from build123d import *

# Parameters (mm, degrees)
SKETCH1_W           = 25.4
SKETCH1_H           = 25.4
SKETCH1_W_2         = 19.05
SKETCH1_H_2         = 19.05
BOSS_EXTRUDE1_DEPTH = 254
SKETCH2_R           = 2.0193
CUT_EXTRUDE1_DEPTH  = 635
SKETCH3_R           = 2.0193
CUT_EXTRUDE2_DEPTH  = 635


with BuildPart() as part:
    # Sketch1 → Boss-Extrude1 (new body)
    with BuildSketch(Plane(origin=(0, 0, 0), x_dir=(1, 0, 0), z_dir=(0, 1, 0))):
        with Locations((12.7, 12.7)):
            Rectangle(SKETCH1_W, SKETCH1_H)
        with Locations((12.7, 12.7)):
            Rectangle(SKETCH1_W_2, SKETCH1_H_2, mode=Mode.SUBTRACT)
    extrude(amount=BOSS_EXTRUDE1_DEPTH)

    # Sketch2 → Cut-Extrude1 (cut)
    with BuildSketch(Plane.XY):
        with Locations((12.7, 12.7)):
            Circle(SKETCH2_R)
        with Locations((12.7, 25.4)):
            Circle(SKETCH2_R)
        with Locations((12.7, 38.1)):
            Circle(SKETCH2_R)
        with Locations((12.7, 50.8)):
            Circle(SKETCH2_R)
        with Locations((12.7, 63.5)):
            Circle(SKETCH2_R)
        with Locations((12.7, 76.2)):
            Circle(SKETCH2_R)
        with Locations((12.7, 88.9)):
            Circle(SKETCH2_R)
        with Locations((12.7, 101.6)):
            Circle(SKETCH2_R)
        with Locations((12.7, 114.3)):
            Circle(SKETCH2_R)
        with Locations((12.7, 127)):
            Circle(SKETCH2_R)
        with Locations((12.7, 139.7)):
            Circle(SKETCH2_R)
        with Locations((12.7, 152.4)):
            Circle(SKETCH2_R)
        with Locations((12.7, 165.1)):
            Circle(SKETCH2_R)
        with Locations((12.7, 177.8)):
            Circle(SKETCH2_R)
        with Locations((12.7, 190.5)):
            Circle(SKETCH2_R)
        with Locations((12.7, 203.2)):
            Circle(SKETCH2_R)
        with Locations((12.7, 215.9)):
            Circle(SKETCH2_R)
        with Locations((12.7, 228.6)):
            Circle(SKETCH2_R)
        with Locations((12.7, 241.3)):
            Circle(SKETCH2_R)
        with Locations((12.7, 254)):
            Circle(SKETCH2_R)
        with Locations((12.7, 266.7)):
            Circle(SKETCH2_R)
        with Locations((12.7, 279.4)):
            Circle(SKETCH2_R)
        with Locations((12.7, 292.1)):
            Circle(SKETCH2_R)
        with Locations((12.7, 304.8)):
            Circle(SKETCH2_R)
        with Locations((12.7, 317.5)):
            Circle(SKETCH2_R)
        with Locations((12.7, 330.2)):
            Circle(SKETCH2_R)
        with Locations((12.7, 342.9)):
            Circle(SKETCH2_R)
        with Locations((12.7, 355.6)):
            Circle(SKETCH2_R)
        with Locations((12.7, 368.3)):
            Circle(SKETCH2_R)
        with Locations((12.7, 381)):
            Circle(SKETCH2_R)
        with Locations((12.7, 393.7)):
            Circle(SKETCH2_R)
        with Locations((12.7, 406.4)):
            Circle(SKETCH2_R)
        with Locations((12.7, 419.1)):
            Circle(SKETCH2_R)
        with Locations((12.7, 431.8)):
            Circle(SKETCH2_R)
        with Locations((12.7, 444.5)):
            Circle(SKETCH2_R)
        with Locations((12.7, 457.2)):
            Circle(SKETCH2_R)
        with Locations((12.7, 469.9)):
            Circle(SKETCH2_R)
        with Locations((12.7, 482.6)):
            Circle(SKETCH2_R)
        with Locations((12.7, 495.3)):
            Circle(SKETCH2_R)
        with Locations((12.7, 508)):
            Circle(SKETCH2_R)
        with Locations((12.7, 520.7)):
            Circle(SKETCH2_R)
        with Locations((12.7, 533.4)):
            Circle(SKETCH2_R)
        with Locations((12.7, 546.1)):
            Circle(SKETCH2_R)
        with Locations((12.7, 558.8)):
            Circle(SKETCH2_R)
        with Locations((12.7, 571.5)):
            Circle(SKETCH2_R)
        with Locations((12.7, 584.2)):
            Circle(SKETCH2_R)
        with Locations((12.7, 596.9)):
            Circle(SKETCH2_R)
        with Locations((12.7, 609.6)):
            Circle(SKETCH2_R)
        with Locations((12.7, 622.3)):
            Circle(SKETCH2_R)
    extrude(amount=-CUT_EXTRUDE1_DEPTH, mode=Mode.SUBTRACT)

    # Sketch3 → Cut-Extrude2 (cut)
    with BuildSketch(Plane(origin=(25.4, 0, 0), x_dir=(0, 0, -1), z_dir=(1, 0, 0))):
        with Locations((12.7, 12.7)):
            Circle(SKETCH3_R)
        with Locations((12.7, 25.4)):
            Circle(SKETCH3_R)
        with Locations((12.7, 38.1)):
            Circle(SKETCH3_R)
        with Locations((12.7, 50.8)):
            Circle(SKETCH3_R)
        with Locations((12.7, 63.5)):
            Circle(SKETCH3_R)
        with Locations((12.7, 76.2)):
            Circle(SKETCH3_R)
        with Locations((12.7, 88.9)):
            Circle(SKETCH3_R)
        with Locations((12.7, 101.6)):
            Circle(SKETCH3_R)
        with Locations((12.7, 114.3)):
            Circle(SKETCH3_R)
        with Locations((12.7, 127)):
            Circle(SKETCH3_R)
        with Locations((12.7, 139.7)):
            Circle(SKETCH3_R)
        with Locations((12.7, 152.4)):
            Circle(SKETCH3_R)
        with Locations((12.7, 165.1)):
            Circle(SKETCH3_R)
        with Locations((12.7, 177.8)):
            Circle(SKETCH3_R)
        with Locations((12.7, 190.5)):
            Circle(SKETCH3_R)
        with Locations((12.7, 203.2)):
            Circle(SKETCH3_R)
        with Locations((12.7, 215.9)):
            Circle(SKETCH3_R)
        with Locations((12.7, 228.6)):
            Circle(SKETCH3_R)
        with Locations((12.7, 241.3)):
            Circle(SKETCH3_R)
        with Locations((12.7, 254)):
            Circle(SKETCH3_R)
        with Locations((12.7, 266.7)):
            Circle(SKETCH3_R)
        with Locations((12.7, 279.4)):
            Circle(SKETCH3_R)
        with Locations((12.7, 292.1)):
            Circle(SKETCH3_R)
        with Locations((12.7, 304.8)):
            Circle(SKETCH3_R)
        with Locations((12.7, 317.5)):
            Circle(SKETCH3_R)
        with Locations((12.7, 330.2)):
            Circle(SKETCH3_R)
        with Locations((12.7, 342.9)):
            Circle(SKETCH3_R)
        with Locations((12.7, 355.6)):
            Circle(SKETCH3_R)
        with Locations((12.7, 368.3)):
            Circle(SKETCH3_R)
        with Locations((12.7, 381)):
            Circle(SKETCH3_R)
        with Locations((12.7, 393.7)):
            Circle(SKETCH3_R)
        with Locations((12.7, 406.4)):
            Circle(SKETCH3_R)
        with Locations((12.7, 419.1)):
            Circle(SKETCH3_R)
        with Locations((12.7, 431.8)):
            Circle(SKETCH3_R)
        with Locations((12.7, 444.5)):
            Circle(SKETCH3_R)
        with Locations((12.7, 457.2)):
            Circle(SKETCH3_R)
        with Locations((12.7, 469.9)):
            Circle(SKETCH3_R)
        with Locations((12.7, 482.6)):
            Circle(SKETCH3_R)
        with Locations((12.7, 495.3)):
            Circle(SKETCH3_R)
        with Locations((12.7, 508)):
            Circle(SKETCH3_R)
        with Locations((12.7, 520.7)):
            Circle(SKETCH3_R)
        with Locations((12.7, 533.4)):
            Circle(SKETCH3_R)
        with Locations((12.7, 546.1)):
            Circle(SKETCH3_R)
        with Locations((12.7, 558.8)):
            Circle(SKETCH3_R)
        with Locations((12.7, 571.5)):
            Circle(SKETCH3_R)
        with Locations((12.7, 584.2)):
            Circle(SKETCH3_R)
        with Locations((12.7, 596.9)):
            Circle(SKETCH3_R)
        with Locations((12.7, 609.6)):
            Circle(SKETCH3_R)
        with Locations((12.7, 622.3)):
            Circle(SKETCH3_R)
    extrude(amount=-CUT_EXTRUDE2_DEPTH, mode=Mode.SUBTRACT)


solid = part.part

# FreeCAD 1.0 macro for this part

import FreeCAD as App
import Part
import Sketcher
from FreeCAD import Vector
Q = App.Units.Quantity

doc = App.newDocument("Part")
body = doc.addObject("PartDesign::Body", "Body")

sketch1 = doc.addObject("Sketcher::SketchObject", "Sketch")
body.addObject(sketch1)
sketch1.AttachmentSupport = (doc.XZ_Plane, [""])
sketch1.MapMode = "FlatFace"
sketch1.addGeometry([
    Part.LineSegment(Vector(0, -25, 0), Vector(0, 0, 0)),
    Part.LineSegment(Vector(0, 0, 0), Vector(25, 0, 0)),
    Part.LineSegment(Vector(25, 0, 0), Vector(25, -25, 0)),
    Part.LineSegment(Vector(25, -25, 0), Vector(0, -25, 0)),
    Part.LineSegment(Vector(22, -3, 0), Vector(3, -3, 0)),
    Part.LineSegment(Vector(3, -3, 0), Vector(3, -22, 0)),
    Part.LineSegment(Vector(3, -22, 0), Vector(22, -22, 0)),
    Part.LineSegment(Vector(22, -22, 0), Vector(22, -3, 0)),
], False)
sketch1.addConstraint([
    Sketcher.Constraint("Coincident", 0, 2, 1, 1),
    Sketcher.Constraint("Coincident", 1, 2, 2, 1),
    Sketcher.Constraint("Coincident", 2, 2, 3, 1),
    Sketcher.Constraint("Coincident", 3, 2, 0, 1),
    Sketcher.Constraint("Coincident", 4, 2, 5, 1),
    Sketcher.Constraint("Coincident", 5, 2, 6, 1),
    Sketcher.Constraint("Coincident", 6, 2, 7, 1),
    Sketcher.Constraint("Coincident", 7, 2, 4, 1),
    Sketcher.Constraint("Vertical", 0),
    Sketcher.Constraint("Horizontal", 1),
    Sketcher.Constraint("Vertical", 2),
    Sketcher.Constraint("Horizontal", 3),
    Sketcher.Constraint("Horizontal", 4),
    Sketcher.Constraint("Vertical", 5),
    Sketcher.Constraint("Horizontal", 6),
    Sketcher.Constraint("Vertical", 7),
    Sketcher.Constraint("Coincident", 0, 2, -1, 1),
    Sketcher.Constraint("Equal", 3, 0),
    Sketcher.Constraint("Equal", 6, 5),
    Sketcher.Constraint("DistanceX", 1, 1, 1, 2, Q("1 in")),
    Sketcher.Constraint("DistanceX", 4, 2, 4, 1, Q("0.75 in")),
    Sketcher.Constraint("DistanceX", -1, 1, 4, 2, Q("0.125 in")),
    Sketcher.Constraint("DistanceY", 4, 2, -1, 1, Q("0.125 in")),
])
pad1 = doc.addObject("PartDesign::Pad", "Pad")
body.addObject(pad1)
pad1.Profile = sketch1
pad1.Length = Q("10 in")
pad1.Reversed = True

sketch2 = doc.addObject("Sketcher::SketchObject", "Sketch001")
body.addObject(sketch2)
sketch2.AttachmentSupport = (doc.XY_Plane, [""])
sketch2.MapMode = "FlatFace"
sketch2.addGeometry([
    Part.Circle(Vector(12.7, 12.7, 0), Vector(0, 0, 1), 2),
    Part.Circle(Vector(12.7, 25.4, 0), Vector(0, 0, 1), 2),
    Part.Circle(Vector(12.7, 38.1, 0), Vector(0, 0, 1), 2),
    Part.Circle(Vector(12.7, 50.8, 0), Vector(0, 0, 1), 2),
    Part.Circle(Vector(12.7, 63.5, 0), Vector(0, 0, 1), 2),
    Part.Circle(Vector(12.7, 76.2, 0), Vector(0, 0, 1), 2),
    Part.Circle(Vector(12.7, 88.9, 0), Vector(0, 0, 1), 2),
    Part.Circle(Vector(12.7, 101.6, 0), Vector(0, 0, 1), 2),
    Part.Circle(Vector(12.7, 114.3, 0), Vector(0, 0, 1), 2),
    Part.Circle(Vector(12.7, 127, 0), Vector(0, 0, 1), 2),
    Part.Circle(Vector(12.7, 139.7, 0), Vector(0, 0, 1), 2),
    Part.Circle(Vector(12.7, 152.4, 0), Vector(0, 0, 1), 2),
    Part.Circle(Vector(12.7, 165.1, 0), Vector(0, 0, 1), 2),
    Part.Circle(Vector(12.7, 177.8, 0), Vector(0, 0, 1), 2),
    Part.Circle(Vector(12.7, 190.5, 0), Vector(0, 0, 1), 2),
    Part.Circle(Vector(12.7, 203.2, 0), Vector(0, 0, 1), 2),
    Part.Circle(Vector(12.7, 215.9, 0), Vector(0, 0, 1), 2),
    Part.Circle(Vector(12.7, 228.6, 0), Vector(0, 0, 1), 2),
    Part.Circle(Vector(12.7, 241.3, 0), Vector(0, 0, 1), 2),
    Part.Circle(Vector(12.7, 254, 0), Vector(0, 0, 1), 2),
    Part.Circle(Vector(12.7, 266.7, 0), Vector(0, 0, 1), 2),
    Part.Circle(Vector(12.7, 279.4, 0), Vector(0, 0, 1), 2),
    Part.Circle(Vector(12.7, 292.1, 0), Vector(0, 0, 1), 2),
    Part.Circle(Vector(12.7, 304.8, 0), Vector(0, 0, 1), 2),
    Part.Circle(Vector(12.7, 317.5, 0), Vector(0, 0, 1), 2),
    Part.Circle(Vector(12.7, 330.2, 0), Vector(0, 0, 1), 2),
    Part.Circle(Vector(12.7, 342.9, 0), Vector(0, 0, 1), 2),
    Part.Circle(Vector(12.7, 355.6, 0), Vector(0, 0, 1), 2),
    Part.Circle(Vector(12.7, 368.3, 0), Vector(0, 0, 1), 2),
    Part.Circle(Vector(12.7, 381, 0), Vector(0, 0, 1), 2),
    Part.Circle(Vector(12.7, 393.7, 0), Vector(0, 0, 1), 2),
    Part.Circle(Vector(12.7, 406.4, 0), Vector(0, 0, 1), 2),
    Part.Circle(Vector(12.7, 419.1, 0), Vector(0, 0, 1), 2),
    Part.Circle(Vector(12.7, 431.8, 0), Vector(0, 0, 1), 2),
    Part.Circle(Vector(12.7, 444.5, 0), Vector(0, 0, 1), 2),
    Part.Circle(Vector(12.7, 457.2, 0), Vector(0, 0, 1), 2),
    Part.Circle(Vector(12.7, 469.9, 0), Vector(0, 0, 1), 2),
    Part.Circle(Vector(12.7, 482.6, 0), Vector(0, 0, 1), 2),
    Part.Circle(Vector(12.7, 495.3, 0), Vector(0, 0, 1), 2),
    Part.Circle(Vector(12.7, 508, 0), Vector(0, 0, 1), 2),
    Part.Circle(Vector(12.7, 520.7, 0), Vector(0, 0, 1), 2),
    Part.Circle(Vector(12.7, 533.4, 0), Vector(0, 0, 1), 2),
    Part.Circle(Vector(12.7, 546.1, 0), Vector(0, 0, 1), 2),
    Part.Circle(Vector(12.7, 558.8, 0), Vector(0, 0, 1), 2),
    Part.Circle(Vector(12.7, 571.5, 0), Vector(0, 0, 1), 2),
    Part.Circle(Vector(12.7, 584.2, 0), Vector(0, 0, 1), 2),
    Part.Circle(Vector(12.7, 596.9, 0), Vector(0, 0, 1), 2),
    Part.Circle(Vector(12.7, 609.6, 0), Vector(0, 0, 1), 2),
    Part.Circle(Vector(12.7, 622.3, 0), Vector(0, 0, 1), 2),
], False)
sketch2.addConstraint([
    Sketcher.Constraint("Equal", 0, 1),
    Sketcher.Constraint("Equal", 1, 2),
    Sketcher.Constraint("Equal", 2, 3),
    Sketcher.Constraint("Equal", 3, 4),
    Sketcher.Constraint("Equal", 4, 5),
    Sketcher.Constraint("Equal", 5, 6),
    Sketcher.Constraint("Equal", 6, 7),
    Sketcher.Constraint("Equal", 7, 8),
    Sketcher.Constraint("Equal", 8, 9),
    Sketcher.Constraint("Equal", 9, 10),
    Sketcher.Constraint("Equal", 10, 11),
    Sketcher.Constraint("Equal", 11, 12),
    Sketcher.Constraint("Equal", 12, 13),
    Sketcher.Constraint("Equal", 13, 14),
    Sketcher.Constraint("Equal", 14, 15),
    Sketcher.Constraint("Equal", 15, 16),
    Sketcher.Constraint("Equal", 16, 17),
    Sketcher.Constraint("Equal", 17, 18),
    Sketcher.Constraint("Equal", 18, 19),
    Sketcher.Constraint("Equal", 19, 20),
    Sketcher.Constraint("Equal", 20, 21),
    Sketcher.Constraint("Equal", 21, 22),
    Sketcher.Constraint("Equal", 22, 23),
    Sketcher.Constraint("Equal", 23, 24),
    Sketcher.Constraint("Equal", 24, 25),
    Sketcher.Constraint("Equal", 25, 26),
    Sketcher.Constraint("Equal", 26, 27),
    Sketcher.Constraint("Equal", 27, 28),
    Sketcher.Constraint("Equal", 28, 29),
    Sketcher.Constraint("Equal", 29, 30),
    Sketcher.Constraint("Equal", 30, 31),
    Sketcher.Constraint("Equal", 31, 32),
    Sketcher.Constraint("Equal", 32, 33),
    Sketcher.Constraint("Equal", 33, 34),
    Sketcher.Constraint("Equal", 34, 35),
    Sketcher.Constraint("Equal", 35, 36),
    Sketcher.Constraint("Equal", 36, 37),
    Sketcher.Constraint("Equal", 37, 38),
    Sketcher.Constraint("Equal", 38, 39),
    Sketcher.Constraint("Equal", 39, 40),
    Sketcher.Constraint("Equal", 40, 41),
    Sketcher.Constraint("Equal", 41, 42),
    Sketcher.Constraint("Equal", 42, 43),
    Sketcher.Constraint("Equal", 43, 44),
    Sketcher.Constraint("Equal", 44, 45),
    Sketcher.Constraint("Equal", 45, 46),
    Sketcher.Constraint("Equal", 46, 47),
    Sketcher.Constraint("Equal", 47, 48),
    Sketcher.Constraint("Vertical", 0, 3, 1, 3),
    Sketcher.Constraint("Vertical", 1, 3, 2, 3),
    Sketcher.Constraint("Vertical", 2, 3, 3, 3),
    Sketcher.Constraint("Vertical", 3, 3, 4, 3),
    Sketcher.Constraint("Vertical", 4, 3, 5, 3),
    Sketcher.Constraint("Vertical", 5, 3, 6, 3),
    Sketcher.Constraint("Vertical", 6, 3, 7, 3),
    Sketcher.Constraint("Vertical", 7, 3, 8, 3),
    Sketcher.Constraint("Vertical", 8, 3, 9, 3),
    Sketcher.Constraint("Vertical", 9, 3, 10, 3),
    Sketcher.Constraint("Vertical", 10, 3, 11, 3),
    Sketcher.Constraint("Vertical", 11, 3, 12, 3),
    Sketcher.Constraint("Vertical", 12, 3, 13, 3),
    Sketcher.Constraint("Vertical", 13, 3, 14, 3),
    Sketcher.Constraint("Vertical", 14, 3, 15, 3),
    Sketcher.Constraint("Vertical", 15, 3, 16, 3),
    Sketcher.Constraint("Vertical", 16, 3, 17, 3),
    Sketcher.Constraint("Vertical", 17, 3, 18, 3),
    Sketcher.Constraint("Vertical", 18, 3, 19, 3),
    Sketcher.Constraint("Vertical", 19, 3, 20, 3),
    Sketcher.Constraint("Vertical", 20, 3, 21, 3),
    Sketcher.Constraint("Vertical", 21, 3, 22, 3),
    Sketcher.Constraint("Vertical", 22, 3, 23, 3),
    Sketcher.Constraint("Vertical", 23, 3, 24, 3),
    Sketcher.Constraint("Vertical", 24, 3, 25, 3),
    Sketcher.Constraint("Vertical", 25, 3, 26, 3),
    Sketcher.Constraint("Vertical", 26, 3, 27, 3),
    Sketcher.Constraint("Vertical", 27, 3, 28, 3),
    Sketcher.Constraint("Vertical", 28, 3, 29, 3),
    Sketcher.Constraint("Vertical", 29, 3, 30, 3),
    Sketcher.Constraint("Vertical", 30, 3, 31, 3),
    Sketcher.Constraint("Vertical", 31, 3, 32, 3),
    Sketcher.Constraint("Vertical", 32, 3, 33, 3),
    Sketcher.Constraint("Vertical", 33, 3, 34, 3),
    Sketcher.Constraint("Vertical", 34, 3, 35, 3),
    Sketcher.Constraint("Vertical", 35, 3, 36, 3),
    Sketcher.Constraint("Vertical", 36, 3, 37, 3),
    Sketcher.Constraint("Vertical", 37, 3, 38, 3),
    Sketcher.Constraint("Vertical", 38, 3, 39, 3),
    Sketcher.Constraint("Vertical", 39, 3, 40, 3),
    Sketcher.Constraint("Vertical", 40, 3, 41, 3),
    Sketcher.Constraint("Vertical", 41, 3, 42, 3),
    Sketcher.Constraint("Vertical", 42, 3, 43, 3),
    Sketcher.Constraint("Vertical", 43, 3, 44, 3),
    Sketcher.Constraint("Vertical", 44, 3, 45, 3),
    Sketcher.Constraint("Vertical", 45, 3, 46, 3),
    Sketcher.Constraint("Vertical", 46, 3, 47, 3),
    Sketcher.Constraint("Vertical", 47, 3, 48, 3),
    Sketcher.Constraint("Diameter", 0, Q("0.159 in")),
    Sketcher.Constraint("DistanceY", -1, 1, 1, 3, Q("1 in")),
    Sketcher.Constraint("DistanceY", -1, 1, 3, 3, Q("2 in")),
    Sketcher.Constraint("DistanceY", -1, 1, 5, 3, Q("3 in")),
    Sketcher.Constraint("DistanceY", -1, 1, 7, 3, Q("4 in")),
    Sketcher.Constraint("DistanceY", -1, 1, 9, 3, Q("5 in")),
    Sketcher.Constraint("DistanceY", -1, 1, 11, 3, Q("6 in")),
    Sketcher.Constraint("DistanceY", -1, 1, 13, 3, Q("7 in")),
    Sketcher.Constraint("DistanceY", -1, 1, 15, 3, Q("8 in")),
    Sketcher.Constraint("DistanceY", -1, 1, 17, 3, Q("9 in")),
    Sketcher.Constraint("DistanceY", -1, 1, 19, 3, Q("10 in")),
    Sketcher.Constraint("DistanceY", -1, 1, 21, 3, Q("11 in")),
    Sketcher.Constraint("DistanceY", -1, 1, 23, 3, Q("12 in")),
    Sketcher.Constraint("DistanceY", -1, 1, 25, 3, Q("13 in")),
    Sketcher.Constraint("DistanceY", -1, 1, 27, 3, Q("14 in")),
    Sketcher.Constraint("DistanceY", -1, 1, 29, 3, Q("15 in")),
    Sketcher.Constraint("DistanceY", -1, 1, 31, 3, Q("16 in")),
    Sketcher.Constraint("DistanceY", -1, 1, 33, 3, Q("17 in")),
    Sketcher.Constraint("DistanceY", -1, 1, 35, 3, Q("18 in")),
    Sketcher.Constraint("DistanceY", -1, 1, 37, 3, Q("19 in")),
    Sketcher.Constraint("DistanceY", -1, 1, 39, 3, Q("20 in")),
    Sketcher.Constraint("DistanceY", -1, 1, 41, 3, Q("21 in")),
    Sketcher.Constraint("DistanceY", -1, 1, 43, 3, Q("22 in")),
    Sketcher.Constraint("DistanceY", -1, 1, 45, 3, Q("23 in")),
    Sketcher.Constraint("DistanceY", -1, 1, 47, 3, Q("24 in")),
    Sketcher.Constraint("DistanceY", 0, 3, 2, 3, Q("1 in")),
    Sketcher.Constraint("DistanceY", 2, 3, 4, 3, Q("1 in")),
    Sketcher.Constraint("DistanceY", 4, 3, 6, 3, Q("1 in")),
    Sketcher.Constraint("DistanceY", 6, 3, 8, 3, Q("1 in")),
    Sketcher.Constraint("DistanceY", 8, 3, 10, 3, Q("1 in")),
    Sketcher.Constraint("DistanceY", 10, 3, 12, 3, Q("1 in")),
    Sketcher.Constraint("DistanceY", 12, 3, 14, 3, Q("1 in")),
    Sketcher.Constraint("DistanceY", 14, 3, 16, 3, Q("1 in")),
    Sketcher.Constraint("DistanceY", 16, 3, 18, 3, Q("1 in")),
    Sketcher.Constraint("DistanceY", 18, 3, 20, 3, Q("1 in")),
    Sketcher.Constraint("DistanceY", 20, 3, 22, 3, Q("1 in")),
    Sketcher.Constraint("DistanceY", 22, 3, 24, 3, Q("1 in")),
    Sketcher.Constraint("DistanceY", 24, 3, 26, 3, Q("1 in")),
    Sketcher.Constraint("DistanceY", 26, 3, 28, 3, Q("1 in")),
    Sketcher.Constraint("DistanceY", 28, 3, 30, 3, Q("1 in")),
    Sketcher.Constraint("DistanceY", 30, 3, 32, 3, Q("1 in")),
    Sketcher.Constraint("DistanceY", 32, 3, 34, 3, Q("1 in")),
    Sketcher.Constraint("DistanceY", 34, 3, 36, 3, Q("1 in")),
    Sketcher.Constraint("DistanceY", 36, 3, 38, 3, Q("1 in")),
    Sketcher.Constraint("DistanceY", 38, 3, 40, 3, Q("1 in")),
    Sketcher.Constraint("DistanceY", 40, 3, 42, 3, Q("1 in")),
    Sketcher.Constraint("DistanceY", 42, 3, 44, 3, Q("1 in")),
    Sketcher.Constraint("DistanceY", 44, 3, 46, 3, Q("1 in")),
    Sketcher.Constraint("DistanceY", 46, 3, 48, 3, Q("1 in")),
    Sketcher.Constraint("DistanceX", -1, 1, 0, 3, Q("0.5 in")),
    Sketcher.Constraint("DistanceY", -1, 1, 0, 3, Q("0.5 in")),
])
pocket1 = doc.addObject("PartDesign::Pocket", "Pocket")
body.addObject(pocket1)
pocket1.Profile = sketch2
pocket1.Length = Q("25 in")

sketch3 = doc.addObject("Sketcher::SketchObject", "Sketch002")
body.addObject(sketch3)
sketch3.AttachmentSupport = (doc.YZ_Plane, [""])
sketch3.MapMode = "FlatFace"
sketch3.AttachmentOffset = App.Placement(Vector(0, 0, 1 * 25.4), App.Rotation())
sketch3.addGeometry([
    Part.Circle(Vector(12.7, -12.7, 0), Vector(0, 0, 1), 2),
    Part.Circle(Vector(25.4, -12.7, 0), Vector(0, 0, 1), 2),
    Part.Circle(Vector(38.1, -12.7, 0), Vector(0, 0, 1), 2),
    Part.Circle(Vector(50.8, -12.7, 0), Vector(0, 0, 1), 2),
    Part.Circle(Vector(63.5, -12.7, 0), Vector(0, 0, 1), 2),
    Part.Circle(Vector(76.2, -12.7, 0), Vector(0, 0, 1), 2),
    Part.Circle(Vector(88.9, -12.7, 0), Vector(0, 0, 1), 2),
    Part.Circle(Vector(101.6, -12.7, 0), Vector(0, 0, 1), 2),
    Part.Circle(Vector(114.3, -12.7, 0), Vector(0, 0, 1), 2),
    Part.Circle(Vector(127, -12.7, 0), Vector(0, 0, 1), 2),
    Part.Circle(Vector(139.7, -12.7, 0), Vector(0, 0, 1), 2),
    Part.Circle(Vector(152.4, -12.7, 0), Vector(0, 0, 1), 2),
    Part.Circle(Vector(165.1, -12.7, 0), Vector(0, 0, 1), 2),
    Part.Circle(Vector(177.8, -12.7, 0), Vector(0, 0, 1), 2),
    Part.Circle(Vector(190.5, -12.7, 0), Vector(0, 0, 1), 2),
    Part.Circle(Vector(203.2, -12.7, 0), Vector(0, 0, 1), 2),
    Part.Circle(Vector(215.9, -12.7, 0), Vector(0, 0, 1), 2),
    Part.Circle(Vector(228.6, -12.7, 0), Vector(0, 0, 1), 2),
    Part.Circle(Vector(241.3, -12.7, 0), Vector(0, 0, 1), 2),
    Part.Circle(Vector(254, -12.7, 0), Vector(0, 0, 1), 2),
    Part.Circle(Vector(266.7, -12.7, 0), Vector(0, 0, 1), 2),
    Part.Circle(Vector(279.4, -12.7, 0), Vector(0, 0, 1), 2),
    Part.Circle(Vector(292.1, -12.7, 0), Vector(0, 0, 1), 2),
    Part.Circle(Vector(304.8, -12.7, 0), Vector(0, 0, 1), 2),
    Part.Circle(Vector(317.5, -12.7, 0), Vector(0, 0, 1), 2),
    Part.Circle(Vector(330.2, -12.7, 0), Vector(0, 0, 1), 2),
    Part.Circle(Vector(342.9, -12.7, 0), Vector(0, 0, 1), 2),
    Part.Circle(Vector(355.6, -12.7, 0), Vector(0, 0, 1), 2),
    Part.Circle(Vector(368.3, -12.7, 0), Vector(0, 0, 1), 2),
    Part.Circle(Vector(381, -12.7, 0), Vector(0, 0, 1), 2),
    Part.Circle(Vector(393.7, -12.7, 0), Vector(0, 0, 1), 2),
    Part.Circle(Vector(406.4, -12.7, 0), Vector(0, 0, 1), 2),
    Part.Circle(Vector(419.1, -12.7, 0), Vector(0, 0, 1), 2),
    Part.Circle(Vector(431.8, -12.7, 0), Vector(0, 0, 1), 2),
    Part.Circle(Vector(444.5, -12.7, 0), Vector(0, 0, 1), 2),
    Part.Circle(Vector(457.2, -12.7, 0), Vector(0, 0, 1), 2),
    Part.Circle(Vector(469.9, -12.7, 0), Vector(0, 0, 1), 2),
    Part.Circle(Vector(482.6, -12.7, 0), Vector(0, 0, 1), 2),
    Part.Circle(Vector(495.3, -12.7, 0), Vector(0, 0, 1), 2),
    Part.Circle(Vector(508, -12.7, 0), Vector(0, 0, 1), 2),
    Part.Circle(Vector(520.7, -12.7, 0), Vector(0, 0, 1), 2),
    Part.Circle(Vector(533.4, -12.7, 0), Vector(0, 0, 1), 2),
    Part.Circle(Vector(546.1, -12.7, 0), Vector(0, 0, 1), 2),
    Part.Circle(Vector(558.8, -12.7, 0), Vector(0, 0, 1), 2),
    Part.Circle(Vector(571.5, -12.7, 0), Vector(0, 0, 1), 2),
    Part.Circle(Vector(584.2, -12.7, 0), Vector(0, 0, 1), 2),
    Part.Circle(Vector(596.9, -12.7, 0), Vector(0, 0, 1), 2),
    Part.Circle(Vector(609.6, -12.7, 0), Vector(0, 0, 1), 2),
    Part.Circle(Vector(622.3, -12.7, 0), Vector(0, 0, 1), 2),
], False)
sketch3.addConstraint([
    Sketcher.Constraint("Equal", 0, 1),
    Sketcher.Constraint("Equal", 1, 2),
    Sketcher.Constraint("Equal", 2, 3),
    Sketcher.Constraint("Equal", 3, 4),
    Sketcher.Constraint("Equal", 4, 5),
    Sketcher.Constraint("Equal", 5, 6),
    Sketcher.Constraint("Equal", 6, 7),
    Sketcher.Constraint("Equal", 7, 8),
    Sketcher.Constraint("Equal", 8, 9),
    Sketcher.Constraint("Equal", 9, 10),
    Sketcher.Constraint("Equal", 10, 11),
    Sketcher.Constraint("Equal", 11, 12),
    Sketcher.Constraint("Equal", 12, 13),
    Sketcher.Constraint("Equal", 13, 14),
    Sketcher.Constraint("Equal", 14, 15),
    Sketcher.Constraint("Equal", 15, 16),
    Sketcher.Constraint("Equal", 16, 17),
    Sketcher.Constraint("Equal", 17, 18),
    Sketcher.Constraint("Equal", 18, 19),
    Sketcher.Constraint("Equal", 19, 20),
    Sketcher.Constraint("Equal", 20, 21),
    Sketcher.Constraint("Equal", 21, 22),
    Sketcher.Constraint("Equal", 22, 23),
    Sketcher.Constraint("Equal", 23, 24),
    Sketcher.Constraint("Equal", 24, 25),
    Sketcher.Constraint("Equal", 25, 26),
    Sketcher.Constraint("Equal", 26, 27),
    Sketcher.Constraint("Equal", 27, 28),
    Sketcher.Constraint("Equal", 28, 29),
    Sketcher.Constraint("Equal", 29, 30),
    Sketcher.Constraint("Equal", 30, 31),
    Sketcher.Constraint("Equal", 31, 32),
    Sketcher.Constraint("Equal", 32, 33),
    Sketcher.Constraint("Equal", 33, 34),
    Sketcher.Constraint("Equal", 34, 35),
    Sketcher.Constraint("Equal", 35, 36),
    Sketcher.Constraint("Equal", 36, 37),
    Sketcher.Constraint("Equal", 37, 38),
    Sketcher.Constraint("Equal", 38, 39),
    Sketcher.Constraint("Equal", 39, 40),
    Sketcher.Constraint("Equal", 40, 41),
    Sketcher.Constraint("Equal", 41, 42),
    Sketcher.Constraint("Equal", 42, 43),
    Sketcher.Constraint("Equal", 43, 44),
    Sketcher.Constraint("Equal", 44, 45),
    Sketcher.Constraint("Equal", 45, 46),
    Sketcher.Constraint("Equal", 46, 47),
    Sketcher.Constraint("Equal", 47, 48),
    Sketcher.Constraint("Horizontal", 0, 3, 1, 3),
    Sketcher.Constraint("Horizontal", 1, 3, 2, 3),
    Sketcher.Constraint("Horizontal", 2, 3, 3, 3),
    Sketcher.Constraint("Horizontal", 3, 3, 4, 3),
    Sketcher.Constraint("Horizontal", 4, 3, 5, 3),
    Sketcher.Constraint("Horizontal", 5, 3, 6, 3),
    Sketcher.Constraint("Horizontal", 6, 3, 7, 3),
    Sketcher.Constraint("Horizontal", 7, 3, 8, 3),
    Sketcher.Constraint("Horizontal", 8, 3, 9, 3),
    Sketcher.Constraint("Horizontal", 9, 3, 10, 3),
    Sketcher.Constraint("Horizontal", 10, 3, 11, 3),
    Sketcher.Constraint("Horizontal", 11, 3, 12, 3),
    Sketcher.Constraint("Horizontal", 12, 3, 13, 3),
    Sketcher.Constraint("Horizontal", 13, 3, 14, 3),
    Sketcher.Constraint("Horizontal", 14, 3, 15, 3),
    Sketcher.Constraint("Horizontal", 15, 3, 16, 3),
    Sketcher.Constraint("Horizontal", 16, 3, 17, 3),
    Sketcher.Constraint("Horizontal", 17, 3, 18, 3),
    Sketcher.Constraint("Horizontal", 18, 3, 19, 3),
    Sketcher.Constraint("Horizontal", 19, 3, 20, 3),
    Sketcher.Constraint("Horizontal", 20, 3, 21, 3),
    Sketcher.Constraint("Horizontal", 21, 3, 22, 3),
    Sketcher.Constraint("Horizontal", 22, 3, 23, 3),
    Sketcher.Constraint("Horizontal", 23, 3, 24, 3),
    Sketcher.Constraint("Horizontal", 24, 3, 25, 3),
    Sketcher.Constraint("Horizontal", 25, 3, 26, 3),
    Sketcher.Constraint("Horizontal", 26, 3, 27, 3),
    Sketcher.Constraint("Horizontal", 27, 3, 28, 3),
    Sketcher.Constraint("Horizontal", 28, 3, 29, 3),
    Sketcher.Constraint("Horizontal", 29, 3, 30, 3),
    Sketcher.Constraint("Horizontal", 30, 3, 31, 3),
    Sketcher.Constraint("Horizontal", 31, 3, 32, 3),
    Sketcher.Constraint("Horizontal", 32, 3, 33, 3),
    Sketcher.Constraint("Horizontal", 33, 3, 34, 3),
    Sketcher.Constraint("Horizontal", 34, 3, 35, 3),
    Sketcher.Constraint("Horizontal", 35, 3, 36, 3),
    Sketcher.Constraint("Horizontal", 36, 3, 37, 3),
    Sketcher.Constraint("Horizontal", 37, 3, 38, 3),
    Sketcher.Constraint("Horizontal", 38, 3, 39, 3),
    Sketcher.Constraint("Horizontal", 39, 3, 40, 3),
    Sketcher.Constraint("Horizontal", 40, 3, 41, 3),
    Sketcher.Constraint("Horizontal", 41, 3, 42, 3),
    Sketcher.Constraint("Horizontal", 42, 3, 43, 3),
    Sketcher.Constraint("Horizontal", 43, 3, 44, 3),
    Sketcher.Constraint("Horizontal", 44, 3, 45, 3),
    Sketcher.Constraint("Horizontal", 45, 3, 46, 3),
    Sketcher.Constraint("Horizontal", 46, 3, 47, 3),
    Sketcher.Constraint("Horizontal", 47, 3, 48, 3),
    Sketcher.Constraint("Diameter", 0, Q("0.159 in")),
    Sketcher.Constraint("DistanceX", -1, 1, 1, 3, Q("1 in")),
    Sketcher.Constraint("DistanceX", -1, 1, 3, 3, Q("2 in")),
    Sketcher.Constraint("DistanceX", -1, 1, 5, 3, Q("3 in")),
    Sketcher.Constraint("DistanceX", -1, 1, 7, 3, Q("4 in")),
    Sketcher.Constraint("DistanceX", -1, 1, 9, 3, Q("5 in")),
    Sketcher.Constraint("DistanceX", -1, 1, 11, 3, Q("6 in")),
    Sketcher.Constraint("DistanceX", -1, 1, 13, 3, Q("7 in")),
    Sketcher.Constraint("DistanceX", -1, 1, 15, 3, Q("8 in")),
    Sketcher.Constraint("DistanceX", -1, 1, 17, 3, Q("9 in")),
    Sketcher.Constraint("DistanceX", -1, 1, 19, 3, Q("10 in")),
    Sketcher.Constraint("DistanceX", -1, 1, 21, 3, Q("11 in")),
    Sketcher.Constraint("DistanceX", -1, 1, 23, 3, Q("12 in")),
    Sketcher.Constraint("DistanceX", -1, 1, 25, 3, Q("13 in")),
    Sketcher.Constraint("DistanceX", -1, 1, 27, 3, Q("14 in")),
    Sketcher.Constraint("DistanceX", -1, 1, 29, 3, Q("15 in")),
    Sketcher.Constraint("DistanceX", -1, 1, 31, 3, Q("16 in")),
    Sketcher.Constraint("DistanceX", -1, 1, 33, 3, Q("17 in")),
    Sketcher.Constraint("DistanceX", -1, 1, 35, 3, Q("18 in")),
    Sketcher.Constraint("DistanceX", -1, 1, 37, 3, Q("19 in")),
    Sketcher.Constraint("DistanceX", -1, 1, 39, 3, Q("20 in")),
    Sketcher.Constraint("DistanceX", -1, 1, 41, 3, Q("21 in")),
    Sketcher.Constraint("DistanceX", -1, 1, 43, 3, Q("22 in")),
    Sketcher.Constraint("DistanceX", -1, 1, 45, 3, Q("23 in")),
    Sketcher.Constraint("DistanceX", -1, 1, 47, 3, Q("24 in")),
    Sketcher.Constraint("DistanceX", 0, 3, 2, 3, Q("1 in")),
    Sketcher.Constraint("DistanceX", 2, 3, 4, 3, Q("1 in")),
    Sketcher.Constraint("DistanceX", 4, 3, 6, 3, Q("1 in")),
    Sketcher.Constraint("DistanceX", 6, 3, 8, 3, Q("1 in")),
    Sketcher.Constraint("DistanceX", 8, 3, 10, 3, Q("1 in")),
    Sketcher.Constraint("DistanceX", 10, 3, 12, 3, Q("1 in")),
    Sketcher.Constraint("DistanceX", 12, 3, 14, 3, Q("1 in")),
    Sketcher.Constraint("DistanceX", 14, 3, 16, 3, Q("1 in")),
    Sketcher.Constraint("DistanceX", 16, 3, 18, 3, Q("1 in")),
    Sketcher.Constraint("DistanceX", 18, 3, 20, 3, Q("1 in")),
    Sketcher.Constraint("DistanceX", 20, 3, 22, 3, Q("1 in")),
    Sketcher.Constraint("DistanceX", 22, 3, 24, 3, Q("1 in")),
    Sketcher.Constraint("DistanceX", 24, 3, 26, 3, Q("1 in")),
    Sketcher.Constraint("DistanceX", 26, 3, 28, 3, Q("1 in")),
    Sketcher.Constraint("DistanceX", 28, 3, 30, 3, Q("1 in")),
    Sketcher.Constraint("DistanceX", 30, 3, 32, 3, Q("1 in")),
    Sketcher.Constraint("DistanceX", 32, 3, 34, 3, Q("1 in")),
    Sketcher.Constraint("DistanceX", 34, 3, 36, 3, Q("1 in")),
    Sketcher.Constraint("DistanceX", 36, 3, 38, 3, Q("1 in")),
    Sketcher.Constraint("DistanceX", 38, 3, 40, 3, Q("1 in")),
    Sketcher.Constraint("DistanceX", 40, 3, 42, 3, Q("1 in")),
    Sketcher.Constraint("DistanceX", 42, 3, 44, 3, Q("1 in")),
    Sketcher.Constraint("DistanceX", 44, 3, 46, 3, Q("1 in")),
    Sketcher.Constraint("DistanceX", 46, 3, 48, 3, Q("1 in")),
    Sketcher.Constraint("DistanceX", -1, 1, 0, 3, Q("0.5 in")),
    Sketcher.Constraint("DistanceY", 0, 3, -1, 1, Q("0.5 in")),
])
pocket2 = doc.addObject("PartDesign::Pocket", "Pocket001")
body.addObject(pocket2)
pocket2.Profile = sketch3
pocket2.Length = Q("25 in")

doc.recompute()
